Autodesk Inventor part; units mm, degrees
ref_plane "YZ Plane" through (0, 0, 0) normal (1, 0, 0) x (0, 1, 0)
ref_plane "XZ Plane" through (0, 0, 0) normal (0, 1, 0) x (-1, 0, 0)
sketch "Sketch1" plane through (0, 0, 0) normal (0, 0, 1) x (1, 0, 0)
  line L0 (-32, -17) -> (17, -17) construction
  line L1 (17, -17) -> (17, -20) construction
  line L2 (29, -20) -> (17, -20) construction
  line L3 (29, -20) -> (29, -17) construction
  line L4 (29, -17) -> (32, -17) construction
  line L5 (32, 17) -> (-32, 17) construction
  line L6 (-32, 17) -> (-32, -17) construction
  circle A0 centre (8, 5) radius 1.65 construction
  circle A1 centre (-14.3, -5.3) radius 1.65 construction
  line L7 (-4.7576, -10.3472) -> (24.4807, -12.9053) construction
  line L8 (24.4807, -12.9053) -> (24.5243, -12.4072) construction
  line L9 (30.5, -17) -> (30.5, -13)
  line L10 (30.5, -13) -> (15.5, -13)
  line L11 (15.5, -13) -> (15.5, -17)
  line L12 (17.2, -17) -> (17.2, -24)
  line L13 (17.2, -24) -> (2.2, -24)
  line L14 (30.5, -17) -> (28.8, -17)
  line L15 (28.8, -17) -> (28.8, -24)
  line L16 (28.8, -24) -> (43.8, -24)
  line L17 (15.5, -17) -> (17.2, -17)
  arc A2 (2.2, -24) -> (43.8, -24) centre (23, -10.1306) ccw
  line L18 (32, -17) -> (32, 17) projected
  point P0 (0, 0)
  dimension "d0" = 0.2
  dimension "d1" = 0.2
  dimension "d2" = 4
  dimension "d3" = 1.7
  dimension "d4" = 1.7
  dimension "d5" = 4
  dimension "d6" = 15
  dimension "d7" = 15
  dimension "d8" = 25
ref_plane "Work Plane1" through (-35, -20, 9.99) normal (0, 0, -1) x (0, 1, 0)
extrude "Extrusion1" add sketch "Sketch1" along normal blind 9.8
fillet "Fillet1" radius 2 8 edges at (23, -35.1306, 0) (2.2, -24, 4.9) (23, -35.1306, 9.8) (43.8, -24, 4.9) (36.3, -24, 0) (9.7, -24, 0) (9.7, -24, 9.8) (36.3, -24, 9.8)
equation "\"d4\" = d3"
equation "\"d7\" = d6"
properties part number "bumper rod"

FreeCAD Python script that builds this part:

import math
import FreeCAD as App
import Part
import Sketcher
from FreeCAD import Vector
Q = App.Units.Quantity


def edges_at(feature, points):
    """Names of the edges that pass closest to the given points."""
    edges = feature.Shape.Edges
    near = lambda p: min(range(len(edges)), key=lambda i: edges[i].distToShape(Part.Vertex(*p))[0])
    return sorted({f"Edge{near(p) + 1}" for p in points})

doc = App.newDocument("Part")
body = doc.addObject("PartDesign::Body", "Body")

# Sketch on XY plane
sketch1 = doc.addObject("Sketcher::SketchObject", "Sketch")
body.addObject(sketch1)
sketch1.AttachmentSupport = (doc.XY_Plane, [""])
sketch1.MapMode = "FlatFace"
sketch1.addGeometry(Part.LineSegment(Vector(28.8, -17, 0), Vector(30.5, -17, 0)), False)
sketch1.addGeometry(Part.LineSegment(Vector(30.5, -17, 0), Vector(30.5, -13, 0)), False)
sketch1.addGeometry(Part.LineSegment(Vector(30.5, -13, 0), Vector(15.5, -13, 0)), False)
sketch1.addGeometry(Part.LineSegment(Vector(15.5, -13, 0), Vector(15.5, -17, 0)), False)
sketch1.addGeometry(Part.LineSegment(Vector(15.5, -17, 0), Vector(17.2, -17, 0)), False)
sketch1.addGeometry(Part.LineSegment(Vector(17.2, -17, 0), Vector(17.2, -24, 0)), False)
sketch1.addGeometry(Part.LineSegment(Vector(17.2, -24, 0), Vector(2.2, -24, 0)), False)
sketch1.addGeometry(Part.ArcOfCircle(Part.Circle(Vector(23, -10.1306, 0), Vector(0, 0, 1), 25.000005), math.radians(-146.30472), math.radians(-33.69528)), False)
sketch1.addGeometry(Part.LineSegment(Vector(43.8, -24, 0), Vector(28.8, -24, 0)), False)
sketch1.addGeometry(Part.LineSegment(Vector(28.8, -24, 0), Vector(28.8, -17, 0)), False)
sketch1.addConstraint(Sketcher.Constraint("Coincident", 0, 2, 1, 1))
sketch1.addConstraint(Sketcher.Constraint("Coincident", 1, 2, 2, 1))
sketch1.addConstraint(Sketcher.Constraint("Coincident", 2, 2, 3, 1))
sketch1.addConstraint(Sketcher.Constraint("Coincident", 3, 2, 4, 1))
sketch1.addConstraint(Sketcher.Constraint("Coincident", 4, 2, 5, 1))
sketch1.addConstraint(Sketcher.Constraint("Coincident", 5, 2, 6, 1))
sketch1.addConstraint(Sketcher.Constraint("Coincident", 6, 2, 7, 1))
sketch1.addConstraint(Sketcher.Constraint("Coincident", 7, 2, 8, 1))
sketch1.addConstraint(Sketcher.Constraint("Coincident", 8, 2, 9, 1))
sketch1.addConstraint(Sketcher.Constraint("Coincident", 9, 2, 0, 1))
sketch1.addConstraint(Sketcher.Constraint("Horizontal", 0))
sketch1.addConstraint(Sketcher.Constraint("Vertical", 1))
sketch1.addConstraint(Sketcher.Constraint("Horizontal", 2))
sketch1.addConstraint(Sketcher.Constraint("Vertical", 3))
sketch1.addConstraint(Sketcher.Constraint("Horizontal", 4))
sketch1.addConstraint(Sketcher.Constraint("Vertical", 5))
sketch1.addConstraint(Sketcher.Constraint("Horizontal", 6))
sketch1.addConstraint(Sketcher.Constraint("Horizontal", 8))
sketch1.addConstraint(Sketcher.Constraint("Vertical", 9))
sketch1.addConstraint(Sketcher.Constraint("Horizontal", 0, 2, 3, 2))
sketch1.addConstraint(Sketcher.Constraint("Horizontal", 6, 2, 7, 2))
sketch1.addConstraint(Sketcher.Constraint("Equal", 0, 4))
sketch1.addConstraint(Sketcher.Constraint("Equal", 2, 6))
sketch1.addConstraint(Sketcher.Constraint("Equal", 6, 8))
sketch1.addConstraint(Sketcher.Constraint("Radius", 7, Q("25 mm")))
sketch1.addConstraint(Sketcher.Constraint("DistanceX", 2, 2, 2, 1, Q("15 mm")))
sketch1.addConstraint(Sketcher.Constraint("DistanceY", 1, 1, 1, 2, Q("4 mm")))
sketch1.addConstraint(Sketcher.Constraint("DistanceX", 0, 1, 0, 2, Q("1.7 mm")))
sketch1.addConstraint(Sketcher.Constraint("DistanceY", 5, 2, 5, 1, Q("7 mm")))
sketch1.addConstraint(Sketcher.Constraint("DistanceX", -1, 1, 7, 3, Q("23 mm")))
sketch1.addConstraint(Sketcher.Constraint("DistanceY", 0, 2, -1, 1, Q("17 mm")))
pad1 = doc.addObject("PartDesign::Pad", "Pad")
body.addObject(pad1)
pad1.Profile = sketch1
pad1.Length = 9.8
doc.recompute()

fillet = doc.addObject("PartDesign::Fillet", "Fillet")
body.addObject(fillet)
fillet.Base = (pad1, edges_at(pad1, [
    (23, -35.131, 0),
    (2.2, -24, 4.9),
    (23, -35.131, 9.8),
    (43.8, -24, 4.9),
    (36.3, -24, 0),
    (9.7, -24, 0),
    (9.7, -24, 9.8),
    (36.3, -24, 9.8),
]))
fillet.Radius = 2

doc.recompute()
